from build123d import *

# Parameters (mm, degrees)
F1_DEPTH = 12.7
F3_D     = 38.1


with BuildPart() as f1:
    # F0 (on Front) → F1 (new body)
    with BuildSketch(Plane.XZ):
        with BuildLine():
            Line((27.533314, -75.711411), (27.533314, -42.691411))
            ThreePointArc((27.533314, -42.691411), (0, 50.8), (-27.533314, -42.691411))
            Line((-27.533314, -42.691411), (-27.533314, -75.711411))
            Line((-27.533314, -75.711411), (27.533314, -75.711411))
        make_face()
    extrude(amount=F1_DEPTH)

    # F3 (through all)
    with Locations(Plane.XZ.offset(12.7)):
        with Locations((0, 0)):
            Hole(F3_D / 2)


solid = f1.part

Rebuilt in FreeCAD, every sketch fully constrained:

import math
import FreeCAD as App
import Part
import Sketcher
Q = App.Units.Quantity

doc = App.newDocument("Part")
params = doc.addObject("Spreadsheet::Sheet", "Params")
for row, (alias, value) in enumerate([
    ("sketch1_radius", "2 in"),
    ("sketch1_height", "1.3 in"),
    ("pad1_length", "0.5 in"),
    ("sketch2_diameter", "1.5 in"),
    ("hole_diameter", "1.5 in"),
], start=1):
    params.set(f"A{row}", alias)
    params.set(f"B{row}", "=" + value)
    params.setAlias(f"B{row}", alias)

body = doc.addObject("PartDesign::Body", "Body")

sketch1 = body.newObject("Sketcher::SketchObject", "Sketch")
sketch1.AttachmentSupport = (doc.getObject("XZ_Plane"), [""])
sketch1.MapMode = "FlatFace"
sketch1.addGeometry([
    Part.LineSegment(App.Vector(28, -76, 0), App.Vector(28, -43, 0)),
    Part.ArcOfCircle(Part.Circle(App.Vector(0, 0, 0), App.Vector(0, 0, 1), 51), math.radians(-57), math.radians(237)),
    Part.LineSegment(App.Vector(-28, -43, 0), App.Vector(-28, -76, 0)),
    Part.LineSegment(App.Vector(-28, -76, 0), App.Vector(28, -76, 0)),
], False)
sketch1.addConstraint([
    Sketcher.Constraint("Coincident", 0, 2, 1, 1),
    Sketcher.Constraint("Coincident", 1, 2, 2, 1),
    Sketcher.Constraint("Coincident", 2, 2, 3, 1),
    Sketcher.Constraint("Coincident", 3, 2, 0, 1),
    Sketcher.Constraint("Vertical", 0),
    Sketcher.Constraint("Vertical", 2),
    Sketcher.Constraint("Horizontal", 3),
    Sketcher.Constraint("Coincident", 1, 3, -1, 1),
    Sketcher.Constraint("Horizontal", 0, 2, 1, 2),
    Sketcher.Constraint("Radius", 1, Q("2 in")),
    Sketcher.Constraint("DistanceY", 0, 1, 0, 2, Q("1.3 in")),
    Sketcher.Constraint("DistanceX", 3, 1, 3, 2, Q("55.066628 mm")),
])
sketch1.setExpression("Constraints[9]", "Params.sketch1_radius")
sketch1.setExpression("Constraints[10]", "Params.sketch1_height")
pad1 = body.newObject("PartDesign::Pad", "Pad")
pad1.Profile = sketch1
pad1.setExpression("Length", "Params.pad1_length")

sketch2 = body.newObject("Sketcher::SketchObject", "Sketch001")
sketch2.AttachmentSupport = (doc.getObject("XZ_Plane"), [""])
sketch2.MapMode = "FlatFace"
sketch2.AttachmentOffset = App.Placement(App.Vector(0, 0, 0.5 * 25.4), App.Rotation())
sketch2.addGeometry(Part.Circle(App.Vector(0, 0, 0), App.Vector(0, 0, 1), 19), False)
sketch2.addConstraint([
    Sketcher.Constraint("Coincident", 0, 3, -1, 1),
    Sketcher.Constraint("Diameter", 0, Q("1.5 in")),
])
sketch2.setExpression("Constraints[1]", "Params.sketch2_diameter")
doc.recompute()
hole = body.newObject("PartDesign::Hole", "Hole")
hole.Profile = sketch2
hole.ThreadType = "None"
hole.setExpression("Diameter", "Params.hole_diameter")
hole.DepthType = "ThroughAll"

doc.recompute()
